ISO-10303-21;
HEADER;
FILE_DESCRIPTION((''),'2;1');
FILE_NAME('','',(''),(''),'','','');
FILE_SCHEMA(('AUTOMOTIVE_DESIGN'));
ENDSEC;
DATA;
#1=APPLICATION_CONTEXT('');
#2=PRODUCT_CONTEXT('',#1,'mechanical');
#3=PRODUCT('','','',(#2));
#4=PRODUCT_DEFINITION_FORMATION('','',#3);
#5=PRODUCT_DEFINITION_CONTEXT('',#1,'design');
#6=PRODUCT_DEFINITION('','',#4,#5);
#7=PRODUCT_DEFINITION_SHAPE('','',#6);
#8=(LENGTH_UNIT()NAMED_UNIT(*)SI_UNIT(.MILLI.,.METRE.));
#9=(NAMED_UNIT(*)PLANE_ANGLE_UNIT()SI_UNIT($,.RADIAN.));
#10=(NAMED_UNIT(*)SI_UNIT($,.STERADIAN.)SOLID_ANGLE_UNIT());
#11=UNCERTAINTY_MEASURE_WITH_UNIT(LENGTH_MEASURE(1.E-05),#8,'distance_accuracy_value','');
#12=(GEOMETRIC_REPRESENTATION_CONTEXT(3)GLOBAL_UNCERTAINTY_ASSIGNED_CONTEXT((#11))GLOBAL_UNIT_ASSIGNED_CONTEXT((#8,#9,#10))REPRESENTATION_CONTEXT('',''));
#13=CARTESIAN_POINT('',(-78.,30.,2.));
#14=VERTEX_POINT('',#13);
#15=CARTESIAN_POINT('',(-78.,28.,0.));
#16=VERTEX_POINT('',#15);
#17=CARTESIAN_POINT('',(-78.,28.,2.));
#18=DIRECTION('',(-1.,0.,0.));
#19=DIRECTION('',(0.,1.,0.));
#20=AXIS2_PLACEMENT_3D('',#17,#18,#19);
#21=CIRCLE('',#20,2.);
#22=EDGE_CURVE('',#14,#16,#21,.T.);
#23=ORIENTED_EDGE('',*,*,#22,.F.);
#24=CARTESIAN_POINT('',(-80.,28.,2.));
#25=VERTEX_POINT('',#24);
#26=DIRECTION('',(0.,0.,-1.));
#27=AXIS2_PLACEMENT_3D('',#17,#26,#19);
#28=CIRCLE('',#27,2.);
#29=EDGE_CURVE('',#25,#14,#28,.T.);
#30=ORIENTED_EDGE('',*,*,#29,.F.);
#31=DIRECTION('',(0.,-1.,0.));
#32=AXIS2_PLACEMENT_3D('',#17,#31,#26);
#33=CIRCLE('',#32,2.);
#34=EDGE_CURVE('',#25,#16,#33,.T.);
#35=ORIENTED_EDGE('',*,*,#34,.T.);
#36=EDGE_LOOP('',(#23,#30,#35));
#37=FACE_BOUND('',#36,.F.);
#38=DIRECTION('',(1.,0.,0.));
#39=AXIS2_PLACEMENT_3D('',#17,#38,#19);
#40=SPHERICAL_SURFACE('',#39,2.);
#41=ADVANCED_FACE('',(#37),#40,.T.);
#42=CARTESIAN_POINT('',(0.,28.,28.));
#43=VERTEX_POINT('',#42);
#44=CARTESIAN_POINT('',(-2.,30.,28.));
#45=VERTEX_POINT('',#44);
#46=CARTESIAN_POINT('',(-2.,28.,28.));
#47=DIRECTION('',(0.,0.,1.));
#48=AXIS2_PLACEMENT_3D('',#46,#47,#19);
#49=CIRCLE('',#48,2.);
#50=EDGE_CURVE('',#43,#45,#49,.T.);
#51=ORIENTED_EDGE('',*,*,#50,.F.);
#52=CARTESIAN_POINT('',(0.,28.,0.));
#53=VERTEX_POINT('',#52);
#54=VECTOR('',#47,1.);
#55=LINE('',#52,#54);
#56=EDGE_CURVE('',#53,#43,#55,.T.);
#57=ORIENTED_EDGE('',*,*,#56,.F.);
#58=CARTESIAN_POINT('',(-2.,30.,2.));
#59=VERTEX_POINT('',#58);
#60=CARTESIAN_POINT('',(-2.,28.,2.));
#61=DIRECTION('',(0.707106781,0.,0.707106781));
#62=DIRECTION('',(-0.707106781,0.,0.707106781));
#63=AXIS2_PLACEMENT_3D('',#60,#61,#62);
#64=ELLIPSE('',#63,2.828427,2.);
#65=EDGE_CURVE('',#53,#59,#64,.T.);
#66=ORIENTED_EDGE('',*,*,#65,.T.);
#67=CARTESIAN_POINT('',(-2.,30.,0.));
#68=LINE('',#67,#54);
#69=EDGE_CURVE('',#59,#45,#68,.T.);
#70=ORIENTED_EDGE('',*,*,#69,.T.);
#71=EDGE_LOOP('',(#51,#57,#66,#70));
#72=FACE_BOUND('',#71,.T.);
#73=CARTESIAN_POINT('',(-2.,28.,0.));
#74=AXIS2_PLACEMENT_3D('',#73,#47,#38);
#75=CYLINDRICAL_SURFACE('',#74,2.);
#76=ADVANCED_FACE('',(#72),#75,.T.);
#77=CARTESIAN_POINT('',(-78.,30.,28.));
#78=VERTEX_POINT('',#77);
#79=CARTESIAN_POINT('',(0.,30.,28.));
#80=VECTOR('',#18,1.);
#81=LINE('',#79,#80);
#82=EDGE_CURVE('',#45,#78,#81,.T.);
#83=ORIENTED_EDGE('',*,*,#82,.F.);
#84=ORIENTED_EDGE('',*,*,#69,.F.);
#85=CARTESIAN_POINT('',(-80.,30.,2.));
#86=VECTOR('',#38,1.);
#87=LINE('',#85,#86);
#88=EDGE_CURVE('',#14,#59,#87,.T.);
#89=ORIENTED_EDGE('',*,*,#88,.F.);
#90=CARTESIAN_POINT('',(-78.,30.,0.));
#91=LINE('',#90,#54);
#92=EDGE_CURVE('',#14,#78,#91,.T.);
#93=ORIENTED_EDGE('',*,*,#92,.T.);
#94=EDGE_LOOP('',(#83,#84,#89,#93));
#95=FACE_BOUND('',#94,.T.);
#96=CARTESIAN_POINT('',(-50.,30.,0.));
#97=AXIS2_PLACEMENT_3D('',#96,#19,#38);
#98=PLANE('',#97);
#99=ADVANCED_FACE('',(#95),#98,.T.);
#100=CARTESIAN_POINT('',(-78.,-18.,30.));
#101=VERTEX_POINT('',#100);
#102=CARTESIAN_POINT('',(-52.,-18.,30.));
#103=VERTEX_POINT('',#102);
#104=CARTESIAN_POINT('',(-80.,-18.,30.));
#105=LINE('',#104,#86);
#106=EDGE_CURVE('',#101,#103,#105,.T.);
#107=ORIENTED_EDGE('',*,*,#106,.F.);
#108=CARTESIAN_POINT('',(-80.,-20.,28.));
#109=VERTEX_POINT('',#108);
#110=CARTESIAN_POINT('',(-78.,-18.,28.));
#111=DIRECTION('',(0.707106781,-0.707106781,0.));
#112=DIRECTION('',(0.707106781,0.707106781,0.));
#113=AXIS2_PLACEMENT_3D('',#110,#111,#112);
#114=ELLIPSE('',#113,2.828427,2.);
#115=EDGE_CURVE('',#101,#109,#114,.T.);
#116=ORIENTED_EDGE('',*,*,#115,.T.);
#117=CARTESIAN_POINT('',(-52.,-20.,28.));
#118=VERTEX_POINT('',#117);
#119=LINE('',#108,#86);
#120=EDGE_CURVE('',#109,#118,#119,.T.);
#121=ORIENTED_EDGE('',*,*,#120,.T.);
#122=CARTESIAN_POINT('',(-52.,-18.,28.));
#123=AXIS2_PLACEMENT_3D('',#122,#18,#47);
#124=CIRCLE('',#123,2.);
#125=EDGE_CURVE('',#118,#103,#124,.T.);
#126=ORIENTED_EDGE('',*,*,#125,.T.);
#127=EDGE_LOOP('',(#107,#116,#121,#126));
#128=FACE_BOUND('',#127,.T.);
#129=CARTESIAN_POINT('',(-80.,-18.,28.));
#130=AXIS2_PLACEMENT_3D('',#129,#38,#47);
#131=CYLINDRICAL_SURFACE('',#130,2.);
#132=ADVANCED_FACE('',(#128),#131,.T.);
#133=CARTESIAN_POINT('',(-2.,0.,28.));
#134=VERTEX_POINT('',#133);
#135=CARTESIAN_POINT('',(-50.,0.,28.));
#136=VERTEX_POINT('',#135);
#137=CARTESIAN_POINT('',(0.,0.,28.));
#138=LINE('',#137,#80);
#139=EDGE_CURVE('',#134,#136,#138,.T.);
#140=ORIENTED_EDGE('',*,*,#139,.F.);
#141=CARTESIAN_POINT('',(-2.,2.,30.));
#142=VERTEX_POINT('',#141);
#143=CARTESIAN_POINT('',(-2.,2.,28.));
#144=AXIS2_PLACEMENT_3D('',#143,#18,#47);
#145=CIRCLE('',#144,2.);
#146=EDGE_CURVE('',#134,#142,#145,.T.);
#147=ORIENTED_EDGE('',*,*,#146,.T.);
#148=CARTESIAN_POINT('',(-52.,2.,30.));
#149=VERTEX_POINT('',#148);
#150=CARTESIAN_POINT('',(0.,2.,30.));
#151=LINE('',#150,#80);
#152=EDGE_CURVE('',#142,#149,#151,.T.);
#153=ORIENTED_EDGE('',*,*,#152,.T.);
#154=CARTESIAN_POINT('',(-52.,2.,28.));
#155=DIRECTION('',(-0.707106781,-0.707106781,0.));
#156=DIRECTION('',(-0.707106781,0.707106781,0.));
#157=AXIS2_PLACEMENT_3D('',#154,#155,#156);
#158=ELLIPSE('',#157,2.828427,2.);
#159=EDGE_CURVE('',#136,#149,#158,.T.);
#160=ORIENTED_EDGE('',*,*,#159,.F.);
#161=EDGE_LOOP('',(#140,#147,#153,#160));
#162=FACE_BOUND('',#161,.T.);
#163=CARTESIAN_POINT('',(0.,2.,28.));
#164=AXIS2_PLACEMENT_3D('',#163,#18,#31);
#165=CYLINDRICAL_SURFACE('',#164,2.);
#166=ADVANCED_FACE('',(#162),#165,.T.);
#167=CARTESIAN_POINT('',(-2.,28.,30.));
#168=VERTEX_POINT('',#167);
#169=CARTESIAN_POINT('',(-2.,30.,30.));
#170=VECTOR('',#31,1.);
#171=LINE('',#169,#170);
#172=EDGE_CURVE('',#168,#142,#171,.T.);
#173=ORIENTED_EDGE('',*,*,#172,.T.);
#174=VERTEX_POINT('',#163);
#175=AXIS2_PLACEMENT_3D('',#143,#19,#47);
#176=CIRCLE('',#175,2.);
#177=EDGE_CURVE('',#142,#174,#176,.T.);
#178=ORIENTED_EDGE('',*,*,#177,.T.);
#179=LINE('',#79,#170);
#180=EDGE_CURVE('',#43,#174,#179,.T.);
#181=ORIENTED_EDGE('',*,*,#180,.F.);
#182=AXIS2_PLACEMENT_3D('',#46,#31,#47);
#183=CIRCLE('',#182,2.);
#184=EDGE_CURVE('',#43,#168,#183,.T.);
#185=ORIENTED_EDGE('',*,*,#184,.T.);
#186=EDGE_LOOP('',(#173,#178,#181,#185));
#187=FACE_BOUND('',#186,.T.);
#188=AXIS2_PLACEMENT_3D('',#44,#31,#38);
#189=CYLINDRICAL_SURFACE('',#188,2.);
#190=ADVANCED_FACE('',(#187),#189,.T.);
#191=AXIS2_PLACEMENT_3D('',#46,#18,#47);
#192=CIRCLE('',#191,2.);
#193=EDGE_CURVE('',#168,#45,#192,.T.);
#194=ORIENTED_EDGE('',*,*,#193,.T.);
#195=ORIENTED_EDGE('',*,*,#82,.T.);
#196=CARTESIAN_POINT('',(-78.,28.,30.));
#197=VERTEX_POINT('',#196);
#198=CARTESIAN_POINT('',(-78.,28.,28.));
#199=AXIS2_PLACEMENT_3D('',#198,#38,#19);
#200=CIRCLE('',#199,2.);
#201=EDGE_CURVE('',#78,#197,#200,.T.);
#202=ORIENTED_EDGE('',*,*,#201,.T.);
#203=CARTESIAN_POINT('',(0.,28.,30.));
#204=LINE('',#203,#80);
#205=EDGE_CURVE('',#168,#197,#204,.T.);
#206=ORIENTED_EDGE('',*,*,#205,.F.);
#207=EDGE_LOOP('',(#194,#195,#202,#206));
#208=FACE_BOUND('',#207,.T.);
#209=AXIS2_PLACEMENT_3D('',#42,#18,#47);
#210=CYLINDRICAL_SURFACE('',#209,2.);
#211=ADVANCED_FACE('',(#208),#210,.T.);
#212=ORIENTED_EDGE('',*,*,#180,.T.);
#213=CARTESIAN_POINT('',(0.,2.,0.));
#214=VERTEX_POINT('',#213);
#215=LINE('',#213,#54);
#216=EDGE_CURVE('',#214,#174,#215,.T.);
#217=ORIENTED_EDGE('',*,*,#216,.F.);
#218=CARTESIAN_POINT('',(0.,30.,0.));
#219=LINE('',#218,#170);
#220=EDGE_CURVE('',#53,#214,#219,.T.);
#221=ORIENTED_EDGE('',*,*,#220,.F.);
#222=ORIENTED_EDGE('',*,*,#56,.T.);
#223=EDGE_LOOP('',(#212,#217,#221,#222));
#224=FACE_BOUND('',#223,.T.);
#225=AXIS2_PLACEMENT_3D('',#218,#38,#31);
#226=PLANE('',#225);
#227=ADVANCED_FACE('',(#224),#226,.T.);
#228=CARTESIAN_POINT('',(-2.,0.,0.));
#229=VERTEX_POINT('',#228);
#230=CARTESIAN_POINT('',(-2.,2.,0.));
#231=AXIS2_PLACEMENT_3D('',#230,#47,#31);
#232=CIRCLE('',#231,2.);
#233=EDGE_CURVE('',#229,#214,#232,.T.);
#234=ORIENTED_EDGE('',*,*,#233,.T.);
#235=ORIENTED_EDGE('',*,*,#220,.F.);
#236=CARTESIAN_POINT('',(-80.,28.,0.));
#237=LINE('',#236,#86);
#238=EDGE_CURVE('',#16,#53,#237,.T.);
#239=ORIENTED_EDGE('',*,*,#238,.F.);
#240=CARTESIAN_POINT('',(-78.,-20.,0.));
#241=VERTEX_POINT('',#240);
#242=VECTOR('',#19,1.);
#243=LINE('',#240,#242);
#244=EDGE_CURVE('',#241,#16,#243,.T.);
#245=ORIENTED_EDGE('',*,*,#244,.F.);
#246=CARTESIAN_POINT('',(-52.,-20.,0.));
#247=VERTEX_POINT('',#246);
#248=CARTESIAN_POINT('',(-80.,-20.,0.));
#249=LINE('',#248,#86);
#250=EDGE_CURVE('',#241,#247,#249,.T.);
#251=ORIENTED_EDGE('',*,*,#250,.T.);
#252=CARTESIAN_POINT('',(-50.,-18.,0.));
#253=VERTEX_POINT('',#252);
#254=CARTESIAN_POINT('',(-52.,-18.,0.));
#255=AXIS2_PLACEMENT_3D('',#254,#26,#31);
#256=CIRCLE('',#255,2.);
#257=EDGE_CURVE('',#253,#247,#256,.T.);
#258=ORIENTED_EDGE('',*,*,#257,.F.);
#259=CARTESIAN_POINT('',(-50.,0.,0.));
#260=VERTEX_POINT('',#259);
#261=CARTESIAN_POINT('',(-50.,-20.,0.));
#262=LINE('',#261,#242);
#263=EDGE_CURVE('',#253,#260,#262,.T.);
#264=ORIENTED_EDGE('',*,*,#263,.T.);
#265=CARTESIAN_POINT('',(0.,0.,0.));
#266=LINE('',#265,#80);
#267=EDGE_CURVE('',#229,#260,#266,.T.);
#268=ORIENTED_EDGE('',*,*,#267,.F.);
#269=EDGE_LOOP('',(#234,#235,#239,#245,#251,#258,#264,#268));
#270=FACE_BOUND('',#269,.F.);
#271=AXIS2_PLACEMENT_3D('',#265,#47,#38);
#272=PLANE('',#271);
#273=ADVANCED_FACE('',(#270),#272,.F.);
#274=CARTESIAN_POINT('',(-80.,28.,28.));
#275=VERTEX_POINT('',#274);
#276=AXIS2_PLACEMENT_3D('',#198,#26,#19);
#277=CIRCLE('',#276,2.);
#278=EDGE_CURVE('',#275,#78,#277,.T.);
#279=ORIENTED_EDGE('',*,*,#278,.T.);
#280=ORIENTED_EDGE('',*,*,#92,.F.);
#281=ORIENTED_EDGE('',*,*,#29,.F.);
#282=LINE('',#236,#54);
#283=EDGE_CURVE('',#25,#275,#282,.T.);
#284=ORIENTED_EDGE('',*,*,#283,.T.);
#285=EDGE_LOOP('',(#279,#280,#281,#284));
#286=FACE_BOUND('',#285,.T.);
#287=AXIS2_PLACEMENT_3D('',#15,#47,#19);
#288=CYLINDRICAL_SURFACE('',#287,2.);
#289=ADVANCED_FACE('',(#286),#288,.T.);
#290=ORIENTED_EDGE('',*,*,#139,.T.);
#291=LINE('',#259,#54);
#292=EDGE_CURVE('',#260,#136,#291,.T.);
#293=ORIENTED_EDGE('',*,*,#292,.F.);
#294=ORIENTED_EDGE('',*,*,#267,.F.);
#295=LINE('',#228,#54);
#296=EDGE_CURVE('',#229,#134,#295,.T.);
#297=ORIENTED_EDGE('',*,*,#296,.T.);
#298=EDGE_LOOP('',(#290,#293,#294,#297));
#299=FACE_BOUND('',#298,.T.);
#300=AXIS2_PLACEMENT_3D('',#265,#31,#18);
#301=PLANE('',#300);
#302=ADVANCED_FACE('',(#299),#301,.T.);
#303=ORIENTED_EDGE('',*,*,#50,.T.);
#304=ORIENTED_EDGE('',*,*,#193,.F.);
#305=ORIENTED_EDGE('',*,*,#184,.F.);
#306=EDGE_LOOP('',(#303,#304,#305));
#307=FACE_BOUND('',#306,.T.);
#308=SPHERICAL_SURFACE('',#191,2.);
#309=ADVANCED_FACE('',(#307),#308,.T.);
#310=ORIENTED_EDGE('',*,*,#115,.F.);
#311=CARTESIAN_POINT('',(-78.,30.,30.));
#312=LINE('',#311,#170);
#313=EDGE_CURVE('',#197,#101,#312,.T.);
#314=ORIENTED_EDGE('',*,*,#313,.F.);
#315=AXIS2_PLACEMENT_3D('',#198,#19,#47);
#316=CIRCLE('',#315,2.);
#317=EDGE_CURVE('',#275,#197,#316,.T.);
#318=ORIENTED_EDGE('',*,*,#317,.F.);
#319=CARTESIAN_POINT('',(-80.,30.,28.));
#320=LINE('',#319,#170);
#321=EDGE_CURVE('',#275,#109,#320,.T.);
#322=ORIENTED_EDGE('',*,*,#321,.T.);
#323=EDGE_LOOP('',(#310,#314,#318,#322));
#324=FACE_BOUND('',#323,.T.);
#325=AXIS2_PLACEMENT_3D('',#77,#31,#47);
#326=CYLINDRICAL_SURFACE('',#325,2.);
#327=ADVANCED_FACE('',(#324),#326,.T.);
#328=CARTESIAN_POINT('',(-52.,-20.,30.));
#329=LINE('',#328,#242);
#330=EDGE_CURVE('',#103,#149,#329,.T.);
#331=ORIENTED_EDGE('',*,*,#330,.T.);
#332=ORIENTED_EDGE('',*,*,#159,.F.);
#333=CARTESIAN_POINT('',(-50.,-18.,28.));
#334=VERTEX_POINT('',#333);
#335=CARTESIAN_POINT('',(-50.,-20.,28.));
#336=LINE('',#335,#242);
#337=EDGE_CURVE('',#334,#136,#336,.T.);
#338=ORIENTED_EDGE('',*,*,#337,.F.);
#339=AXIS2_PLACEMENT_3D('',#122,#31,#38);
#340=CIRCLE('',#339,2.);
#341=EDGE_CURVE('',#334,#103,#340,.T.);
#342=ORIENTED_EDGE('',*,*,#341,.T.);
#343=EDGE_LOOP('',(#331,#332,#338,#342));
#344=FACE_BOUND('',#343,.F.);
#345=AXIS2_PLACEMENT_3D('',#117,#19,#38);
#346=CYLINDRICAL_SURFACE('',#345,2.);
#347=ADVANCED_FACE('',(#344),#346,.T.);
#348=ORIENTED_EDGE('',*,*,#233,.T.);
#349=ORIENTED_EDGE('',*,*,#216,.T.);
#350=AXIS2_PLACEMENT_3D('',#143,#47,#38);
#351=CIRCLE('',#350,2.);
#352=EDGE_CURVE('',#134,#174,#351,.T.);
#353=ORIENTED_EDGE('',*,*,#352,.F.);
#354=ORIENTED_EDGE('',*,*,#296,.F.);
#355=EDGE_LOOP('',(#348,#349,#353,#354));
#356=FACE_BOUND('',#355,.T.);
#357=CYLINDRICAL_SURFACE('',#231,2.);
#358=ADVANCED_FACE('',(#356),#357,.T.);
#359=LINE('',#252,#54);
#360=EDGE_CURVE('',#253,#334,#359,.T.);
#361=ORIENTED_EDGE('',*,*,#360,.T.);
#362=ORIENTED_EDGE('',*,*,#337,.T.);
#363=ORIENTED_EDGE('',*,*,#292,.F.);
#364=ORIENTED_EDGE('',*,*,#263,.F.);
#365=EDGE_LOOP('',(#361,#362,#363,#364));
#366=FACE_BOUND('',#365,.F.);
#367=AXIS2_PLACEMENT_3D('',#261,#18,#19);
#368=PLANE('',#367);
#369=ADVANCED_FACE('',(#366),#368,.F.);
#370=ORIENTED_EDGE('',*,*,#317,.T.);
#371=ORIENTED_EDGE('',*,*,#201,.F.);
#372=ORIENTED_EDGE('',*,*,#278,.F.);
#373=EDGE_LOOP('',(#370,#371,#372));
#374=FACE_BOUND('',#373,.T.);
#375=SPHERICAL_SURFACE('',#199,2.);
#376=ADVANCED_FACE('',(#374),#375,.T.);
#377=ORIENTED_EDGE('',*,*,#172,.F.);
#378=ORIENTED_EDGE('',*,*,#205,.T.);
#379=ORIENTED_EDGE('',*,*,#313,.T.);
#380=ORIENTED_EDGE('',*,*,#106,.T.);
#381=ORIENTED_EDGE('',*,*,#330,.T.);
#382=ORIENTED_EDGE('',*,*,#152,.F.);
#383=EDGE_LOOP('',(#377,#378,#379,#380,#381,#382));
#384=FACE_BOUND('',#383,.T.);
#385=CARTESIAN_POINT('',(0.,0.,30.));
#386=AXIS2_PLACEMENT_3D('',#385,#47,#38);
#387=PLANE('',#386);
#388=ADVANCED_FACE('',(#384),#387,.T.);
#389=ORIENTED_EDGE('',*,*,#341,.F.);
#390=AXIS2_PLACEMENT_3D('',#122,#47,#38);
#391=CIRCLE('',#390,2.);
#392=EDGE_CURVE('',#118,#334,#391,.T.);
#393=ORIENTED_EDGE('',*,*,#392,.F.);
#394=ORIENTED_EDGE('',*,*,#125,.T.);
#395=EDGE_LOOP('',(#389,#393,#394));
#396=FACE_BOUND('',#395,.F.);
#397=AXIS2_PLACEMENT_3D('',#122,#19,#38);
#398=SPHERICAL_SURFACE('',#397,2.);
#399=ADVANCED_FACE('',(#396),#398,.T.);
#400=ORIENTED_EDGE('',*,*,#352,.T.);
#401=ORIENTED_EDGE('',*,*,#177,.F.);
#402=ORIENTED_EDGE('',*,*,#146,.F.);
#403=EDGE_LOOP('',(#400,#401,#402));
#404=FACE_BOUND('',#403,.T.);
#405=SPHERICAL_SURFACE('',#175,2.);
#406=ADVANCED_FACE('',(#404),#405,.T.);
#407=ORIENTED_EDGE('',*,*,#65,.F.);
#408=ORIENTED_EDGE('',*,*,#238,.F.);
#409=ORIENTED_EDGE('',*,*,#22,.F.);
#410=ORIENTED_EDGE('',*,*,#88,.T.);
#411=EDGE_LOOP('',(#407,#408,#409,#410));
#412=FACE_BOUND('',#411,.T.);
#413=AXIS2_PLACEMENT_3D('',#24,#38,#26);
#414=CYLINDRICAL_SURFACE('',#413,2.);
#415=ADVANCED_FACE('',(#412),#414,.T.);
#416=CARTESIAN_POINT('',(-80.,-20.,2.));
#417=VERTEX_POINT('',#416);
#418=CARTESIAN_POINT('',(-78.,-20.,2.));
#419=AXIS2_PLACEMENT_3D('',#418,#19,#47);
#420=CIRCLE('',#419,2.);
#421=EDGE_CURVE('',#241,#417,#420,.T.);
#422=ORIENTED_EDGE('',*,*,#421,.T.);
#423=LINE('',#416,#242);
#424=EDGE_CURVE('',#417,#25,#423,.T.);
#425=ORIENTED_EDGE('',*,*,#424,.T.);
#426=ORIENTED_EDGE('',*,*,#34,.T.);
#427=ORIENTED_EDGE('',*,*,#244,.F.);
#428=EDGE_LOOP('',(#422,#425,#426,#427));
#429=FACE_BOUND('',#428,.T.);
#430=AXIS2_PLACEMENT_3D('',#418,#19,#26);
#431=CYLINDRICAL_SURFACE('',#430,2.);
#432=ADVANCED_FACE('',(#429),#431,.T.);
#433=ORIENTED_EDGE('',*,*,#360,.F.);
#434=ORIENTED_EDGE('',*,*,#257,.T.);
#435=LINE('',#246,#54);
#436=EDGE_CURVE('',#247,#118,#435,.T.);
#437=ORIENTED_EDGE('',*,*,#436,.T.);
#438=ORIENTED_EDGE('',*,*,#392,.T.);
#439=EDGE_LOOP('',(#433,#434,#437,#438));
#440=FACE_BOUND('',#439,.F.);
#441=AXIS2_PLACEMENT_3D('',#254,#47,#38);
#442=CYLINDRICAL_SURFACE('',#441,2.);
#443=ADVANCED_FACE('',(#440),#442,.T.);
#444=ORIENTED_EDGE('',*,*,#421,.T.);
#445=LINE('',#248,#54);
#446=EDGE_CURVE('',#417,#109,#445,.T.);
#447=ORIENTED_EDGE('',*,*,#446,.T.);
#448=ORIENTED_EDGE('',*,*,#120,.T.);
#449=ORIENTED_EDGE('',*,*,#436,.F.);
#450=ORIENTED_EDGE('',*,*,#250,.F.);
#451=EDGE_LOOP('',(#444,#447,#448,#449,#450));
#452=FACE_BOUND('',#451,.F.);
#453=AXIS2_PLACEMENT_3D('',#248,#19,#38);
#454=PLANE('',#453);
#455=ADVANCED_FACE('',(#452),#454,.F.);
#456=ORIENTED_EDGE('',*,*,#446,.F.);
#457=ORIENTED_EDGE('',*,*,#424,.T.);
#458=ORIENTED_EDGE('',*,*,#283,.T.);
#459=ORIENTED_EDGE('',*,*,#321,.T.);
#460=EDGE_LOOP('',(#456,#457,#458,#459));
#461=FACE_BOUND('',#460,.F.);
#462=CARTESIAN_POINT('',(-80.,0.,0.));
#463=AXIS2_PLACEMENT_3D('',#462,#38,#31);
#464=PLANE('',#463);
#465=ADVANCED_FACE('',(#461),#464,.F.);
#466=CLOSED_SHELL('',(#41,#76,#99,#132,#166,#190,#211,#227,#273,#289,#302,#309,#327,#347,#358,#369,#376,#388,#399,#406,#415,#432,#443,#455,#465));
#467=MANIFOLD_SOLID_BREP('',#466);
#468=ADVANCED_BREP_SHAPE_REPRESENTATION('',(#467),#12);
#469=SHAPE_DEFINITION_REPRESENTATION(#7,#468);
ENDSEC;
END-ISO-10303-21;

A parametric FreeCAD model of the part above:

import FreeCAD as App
import Part
import Sketcher
Q = App.Units.Quantity


def edges_at(feature, points):
    """Names of the edges that pass closest to the given points."""
    edges = feature.Shape.Edges
    near = lambda p: min(range(len(edges)), key=lambda i: edges[i].distToShape(Part.Vertex(*p))[0])
    return sorted({f"Edge{near(p) + 1}" for p in points})


def add_polygon(sketch, points):
    """Adds a closed chain of lines whose ends are joined by coincident constraints."""
    first, n = sketch.GeometryCount, len(points)
    for a, b in zip(points, points[1:] + points[:1]):
        sketch.addGeometry(Part.LineSegment(App.Vector(*a, 0), App.Vector(*b, 0)), False)
    for i in range(n):
        sketch.addConstraint(Sketcher.Constraint("Coincident", first + i, 2, first + (i + 1) % n, 1))

doc = App.newDocument("Part")
body = doc.addObject("PartDesign::Body", "Body")

# Sketch on XY plane
sketch1 = doc.addObject("Sketcher::SketchObject", "Sketch")
body.addObject(sketch1)
sketch1.AttachmentSupport = (doc.XY_Plane, [""])
sketch1.MapMode = "FlatFace"
add_polygon(sketch1, [(-50, 0), (0, 0), (0, 30), (-80, 30), (-80, -20), (-50, -20)])  # lines 0-5
sketch1.addConstraint([
    Sketcher.Constraint("Horizontal", 0),
    Sketcher.Constraint("Vertical", 1),
    Sketcher.Constraint("Horizontal", 2),
    Sketcher.Constraint("Vertical", 3),
    Sketcher.Constraint("Horizontal", 4),
    Sketcher.Constraint("Vertical", 5),
    Sketcher.Constraint("Coincident", 0, 2, -1, 1),
    Sketcher.Constraint("Equal", 4, 1),
    Sketcher.Constraint("Equal", 0, 3),
    Sketcher.Constraint("DistanceX", 0, 1, 0, 2, Q("50 mm")),
    Sketcher.Constraint("DistanceX", 4, 1, 4, 2, Q("30 mm")),
])
pad1 = doc.addObject("PartDesign::Pad", "Pad")
body.addObject(pad1)
pad1.Profile = sketch1
pad1.Length = 30
doc.recompute()

fillet = doc.addObject("PartDesign::Fillet", "Fillet")
body.addObject(fillet)
fillet.Base = (pad1, edges_at(pad1, [
    (-40, 30, 30),
    (0, 15, 30),
    (-25, 0, 30),
    (-50, -10, 30),
    (-50, -20, 15),
    (-65, -20, 30),
    (0, 30, 15),
    (0, 0, 15),
    (-40, 30, 0),
    (-80, 30, 15),
    (-80, 5, 30),
    (-80, 5, 0),
]))
fillet.Radius = 2

doc.recompute()
